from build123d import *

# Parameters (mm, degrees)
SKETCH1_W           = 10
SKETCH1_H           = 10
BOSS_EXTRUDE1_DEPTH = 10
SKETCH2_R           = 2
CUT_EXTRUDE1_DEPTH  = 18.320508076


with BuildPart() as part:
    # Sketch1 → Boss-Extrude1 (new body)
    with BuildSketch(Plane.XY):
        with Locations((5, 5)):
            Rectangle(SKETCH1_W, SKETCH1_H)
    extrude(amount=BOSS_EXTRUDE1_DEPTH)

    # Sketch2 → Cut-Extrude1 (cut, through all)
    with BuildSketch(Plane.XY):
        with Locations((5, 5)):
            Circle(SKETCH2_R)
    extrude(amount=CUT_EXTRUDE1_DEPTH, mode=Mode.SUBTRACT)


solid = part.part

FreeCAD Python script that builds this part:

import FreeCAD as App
import Part
import Sketcher
from FreeCAD import Vector


def add_polygon(sketch, points):
    """Adds a closed chain of lines whose ends are joined by coincident constraints."""
    first, n = sketch.GeometryCount, len(points)
    for a, b in zip(points, points[1:] + points[:1]):
        sketch.addGeometry(Part.LineSegment(App.Vector(*a, 0), App.Vector(*b, 0)), False)
    for i in range(n):
        sketch.addConstraint(Sketcher.Constraint("Coincident", first + i, 2, first + (i + 1) % n, 1))

doc = App.newDocument("Part")
params = doc.addObject("Spreadsheet::Sheet", "Params")
for row, (alias, value) in enumerate([
    ("sketch1_width", "10 mm"),
    ("pad1_length", "10 mm"),
    ("sketch2_diameter", "4 mm"),
], start=1):
    params.set(f"A{row}", alias)
    params.set(f"B{row}", "=" + value)
    params.setAlias(f"B{row}", alias)

body = doc.addObject("PartDesign::Body", "Body")

sketch1 = doc.addObject("Sketcher::SketchObject", "Sketch")
body.addObject(sketch1)
sketch1.AttachmentSupport = (doc.XY_Plane, [""])
sketch1.MapMode = "FlatFace"
add_polygon(sketch1, [(0, 10), (0, 0), (10, 0), (10, 10)])
sketch1.addConstraint(Sketcher.Constraint("Vertical", 0))
sketch1.addConstraint(Sketcher.Constraint("Horizontal", 1))
sketch1.addConstraint(Sketcher.Constraint("Vertical", 2))
sketch1.addConstraint(Sketcher.Constraint("Horizontal", 3))
sketch1.addConstraint(Sketcher.Constraint("Coincident", 0, 2, -1, 1))
sketch1.addConstraint(Sketcher.Constraint("Equal", 3, 0))
sketch1.addConstraint(Sketcher.Constraint("DistanceX", 1, 1, 1, 2, 10.0))
sketch1.setExpression("Constraints[10]", "Params.sketch1_width")
pad1 = doc.addObject("PartDesign::Pad", "Pad")
body.addObject(pad1)
pad1.Profile = sketch1
pad1.setExpression("Length", "Params.pad1_length")

sketch2 = doc.addObject("Sketcher::SketchObject", "Sketch001")
body.addObject(sketch2)
sketch2.AttachmentSupport = (doc.XY_Plane, [""])
sketch2.MapMode = "FlatFace"
sketch2.addGeometry(Part.Circle(Vector(5, 5, 0), Vector(0, 0, 1), 2), False)
sketch2.addConstraint(Sketcher.Constraint("Diameter", 0, 4.0))
sketch2.addConstraint(Sketcher.Constraint("DistanceX", -1, 1, 0, 3, 5.0))
sketch2.addConstraint(Sketcher.Constraint("DistanceY", -1, 1, 0, 3, 5.0))
sketch2.setExpression("Constraints[0]", "Params.sketch2_diameter")
pocket1 = doc.addObject("PartDesign::Pocket", "Pocket")
body.addObject(pocket1)
pocket1.Profile = sketch2
pocket1.Type = "ThroughAll"
pocket1.Reversed = True

doc.recompute()
